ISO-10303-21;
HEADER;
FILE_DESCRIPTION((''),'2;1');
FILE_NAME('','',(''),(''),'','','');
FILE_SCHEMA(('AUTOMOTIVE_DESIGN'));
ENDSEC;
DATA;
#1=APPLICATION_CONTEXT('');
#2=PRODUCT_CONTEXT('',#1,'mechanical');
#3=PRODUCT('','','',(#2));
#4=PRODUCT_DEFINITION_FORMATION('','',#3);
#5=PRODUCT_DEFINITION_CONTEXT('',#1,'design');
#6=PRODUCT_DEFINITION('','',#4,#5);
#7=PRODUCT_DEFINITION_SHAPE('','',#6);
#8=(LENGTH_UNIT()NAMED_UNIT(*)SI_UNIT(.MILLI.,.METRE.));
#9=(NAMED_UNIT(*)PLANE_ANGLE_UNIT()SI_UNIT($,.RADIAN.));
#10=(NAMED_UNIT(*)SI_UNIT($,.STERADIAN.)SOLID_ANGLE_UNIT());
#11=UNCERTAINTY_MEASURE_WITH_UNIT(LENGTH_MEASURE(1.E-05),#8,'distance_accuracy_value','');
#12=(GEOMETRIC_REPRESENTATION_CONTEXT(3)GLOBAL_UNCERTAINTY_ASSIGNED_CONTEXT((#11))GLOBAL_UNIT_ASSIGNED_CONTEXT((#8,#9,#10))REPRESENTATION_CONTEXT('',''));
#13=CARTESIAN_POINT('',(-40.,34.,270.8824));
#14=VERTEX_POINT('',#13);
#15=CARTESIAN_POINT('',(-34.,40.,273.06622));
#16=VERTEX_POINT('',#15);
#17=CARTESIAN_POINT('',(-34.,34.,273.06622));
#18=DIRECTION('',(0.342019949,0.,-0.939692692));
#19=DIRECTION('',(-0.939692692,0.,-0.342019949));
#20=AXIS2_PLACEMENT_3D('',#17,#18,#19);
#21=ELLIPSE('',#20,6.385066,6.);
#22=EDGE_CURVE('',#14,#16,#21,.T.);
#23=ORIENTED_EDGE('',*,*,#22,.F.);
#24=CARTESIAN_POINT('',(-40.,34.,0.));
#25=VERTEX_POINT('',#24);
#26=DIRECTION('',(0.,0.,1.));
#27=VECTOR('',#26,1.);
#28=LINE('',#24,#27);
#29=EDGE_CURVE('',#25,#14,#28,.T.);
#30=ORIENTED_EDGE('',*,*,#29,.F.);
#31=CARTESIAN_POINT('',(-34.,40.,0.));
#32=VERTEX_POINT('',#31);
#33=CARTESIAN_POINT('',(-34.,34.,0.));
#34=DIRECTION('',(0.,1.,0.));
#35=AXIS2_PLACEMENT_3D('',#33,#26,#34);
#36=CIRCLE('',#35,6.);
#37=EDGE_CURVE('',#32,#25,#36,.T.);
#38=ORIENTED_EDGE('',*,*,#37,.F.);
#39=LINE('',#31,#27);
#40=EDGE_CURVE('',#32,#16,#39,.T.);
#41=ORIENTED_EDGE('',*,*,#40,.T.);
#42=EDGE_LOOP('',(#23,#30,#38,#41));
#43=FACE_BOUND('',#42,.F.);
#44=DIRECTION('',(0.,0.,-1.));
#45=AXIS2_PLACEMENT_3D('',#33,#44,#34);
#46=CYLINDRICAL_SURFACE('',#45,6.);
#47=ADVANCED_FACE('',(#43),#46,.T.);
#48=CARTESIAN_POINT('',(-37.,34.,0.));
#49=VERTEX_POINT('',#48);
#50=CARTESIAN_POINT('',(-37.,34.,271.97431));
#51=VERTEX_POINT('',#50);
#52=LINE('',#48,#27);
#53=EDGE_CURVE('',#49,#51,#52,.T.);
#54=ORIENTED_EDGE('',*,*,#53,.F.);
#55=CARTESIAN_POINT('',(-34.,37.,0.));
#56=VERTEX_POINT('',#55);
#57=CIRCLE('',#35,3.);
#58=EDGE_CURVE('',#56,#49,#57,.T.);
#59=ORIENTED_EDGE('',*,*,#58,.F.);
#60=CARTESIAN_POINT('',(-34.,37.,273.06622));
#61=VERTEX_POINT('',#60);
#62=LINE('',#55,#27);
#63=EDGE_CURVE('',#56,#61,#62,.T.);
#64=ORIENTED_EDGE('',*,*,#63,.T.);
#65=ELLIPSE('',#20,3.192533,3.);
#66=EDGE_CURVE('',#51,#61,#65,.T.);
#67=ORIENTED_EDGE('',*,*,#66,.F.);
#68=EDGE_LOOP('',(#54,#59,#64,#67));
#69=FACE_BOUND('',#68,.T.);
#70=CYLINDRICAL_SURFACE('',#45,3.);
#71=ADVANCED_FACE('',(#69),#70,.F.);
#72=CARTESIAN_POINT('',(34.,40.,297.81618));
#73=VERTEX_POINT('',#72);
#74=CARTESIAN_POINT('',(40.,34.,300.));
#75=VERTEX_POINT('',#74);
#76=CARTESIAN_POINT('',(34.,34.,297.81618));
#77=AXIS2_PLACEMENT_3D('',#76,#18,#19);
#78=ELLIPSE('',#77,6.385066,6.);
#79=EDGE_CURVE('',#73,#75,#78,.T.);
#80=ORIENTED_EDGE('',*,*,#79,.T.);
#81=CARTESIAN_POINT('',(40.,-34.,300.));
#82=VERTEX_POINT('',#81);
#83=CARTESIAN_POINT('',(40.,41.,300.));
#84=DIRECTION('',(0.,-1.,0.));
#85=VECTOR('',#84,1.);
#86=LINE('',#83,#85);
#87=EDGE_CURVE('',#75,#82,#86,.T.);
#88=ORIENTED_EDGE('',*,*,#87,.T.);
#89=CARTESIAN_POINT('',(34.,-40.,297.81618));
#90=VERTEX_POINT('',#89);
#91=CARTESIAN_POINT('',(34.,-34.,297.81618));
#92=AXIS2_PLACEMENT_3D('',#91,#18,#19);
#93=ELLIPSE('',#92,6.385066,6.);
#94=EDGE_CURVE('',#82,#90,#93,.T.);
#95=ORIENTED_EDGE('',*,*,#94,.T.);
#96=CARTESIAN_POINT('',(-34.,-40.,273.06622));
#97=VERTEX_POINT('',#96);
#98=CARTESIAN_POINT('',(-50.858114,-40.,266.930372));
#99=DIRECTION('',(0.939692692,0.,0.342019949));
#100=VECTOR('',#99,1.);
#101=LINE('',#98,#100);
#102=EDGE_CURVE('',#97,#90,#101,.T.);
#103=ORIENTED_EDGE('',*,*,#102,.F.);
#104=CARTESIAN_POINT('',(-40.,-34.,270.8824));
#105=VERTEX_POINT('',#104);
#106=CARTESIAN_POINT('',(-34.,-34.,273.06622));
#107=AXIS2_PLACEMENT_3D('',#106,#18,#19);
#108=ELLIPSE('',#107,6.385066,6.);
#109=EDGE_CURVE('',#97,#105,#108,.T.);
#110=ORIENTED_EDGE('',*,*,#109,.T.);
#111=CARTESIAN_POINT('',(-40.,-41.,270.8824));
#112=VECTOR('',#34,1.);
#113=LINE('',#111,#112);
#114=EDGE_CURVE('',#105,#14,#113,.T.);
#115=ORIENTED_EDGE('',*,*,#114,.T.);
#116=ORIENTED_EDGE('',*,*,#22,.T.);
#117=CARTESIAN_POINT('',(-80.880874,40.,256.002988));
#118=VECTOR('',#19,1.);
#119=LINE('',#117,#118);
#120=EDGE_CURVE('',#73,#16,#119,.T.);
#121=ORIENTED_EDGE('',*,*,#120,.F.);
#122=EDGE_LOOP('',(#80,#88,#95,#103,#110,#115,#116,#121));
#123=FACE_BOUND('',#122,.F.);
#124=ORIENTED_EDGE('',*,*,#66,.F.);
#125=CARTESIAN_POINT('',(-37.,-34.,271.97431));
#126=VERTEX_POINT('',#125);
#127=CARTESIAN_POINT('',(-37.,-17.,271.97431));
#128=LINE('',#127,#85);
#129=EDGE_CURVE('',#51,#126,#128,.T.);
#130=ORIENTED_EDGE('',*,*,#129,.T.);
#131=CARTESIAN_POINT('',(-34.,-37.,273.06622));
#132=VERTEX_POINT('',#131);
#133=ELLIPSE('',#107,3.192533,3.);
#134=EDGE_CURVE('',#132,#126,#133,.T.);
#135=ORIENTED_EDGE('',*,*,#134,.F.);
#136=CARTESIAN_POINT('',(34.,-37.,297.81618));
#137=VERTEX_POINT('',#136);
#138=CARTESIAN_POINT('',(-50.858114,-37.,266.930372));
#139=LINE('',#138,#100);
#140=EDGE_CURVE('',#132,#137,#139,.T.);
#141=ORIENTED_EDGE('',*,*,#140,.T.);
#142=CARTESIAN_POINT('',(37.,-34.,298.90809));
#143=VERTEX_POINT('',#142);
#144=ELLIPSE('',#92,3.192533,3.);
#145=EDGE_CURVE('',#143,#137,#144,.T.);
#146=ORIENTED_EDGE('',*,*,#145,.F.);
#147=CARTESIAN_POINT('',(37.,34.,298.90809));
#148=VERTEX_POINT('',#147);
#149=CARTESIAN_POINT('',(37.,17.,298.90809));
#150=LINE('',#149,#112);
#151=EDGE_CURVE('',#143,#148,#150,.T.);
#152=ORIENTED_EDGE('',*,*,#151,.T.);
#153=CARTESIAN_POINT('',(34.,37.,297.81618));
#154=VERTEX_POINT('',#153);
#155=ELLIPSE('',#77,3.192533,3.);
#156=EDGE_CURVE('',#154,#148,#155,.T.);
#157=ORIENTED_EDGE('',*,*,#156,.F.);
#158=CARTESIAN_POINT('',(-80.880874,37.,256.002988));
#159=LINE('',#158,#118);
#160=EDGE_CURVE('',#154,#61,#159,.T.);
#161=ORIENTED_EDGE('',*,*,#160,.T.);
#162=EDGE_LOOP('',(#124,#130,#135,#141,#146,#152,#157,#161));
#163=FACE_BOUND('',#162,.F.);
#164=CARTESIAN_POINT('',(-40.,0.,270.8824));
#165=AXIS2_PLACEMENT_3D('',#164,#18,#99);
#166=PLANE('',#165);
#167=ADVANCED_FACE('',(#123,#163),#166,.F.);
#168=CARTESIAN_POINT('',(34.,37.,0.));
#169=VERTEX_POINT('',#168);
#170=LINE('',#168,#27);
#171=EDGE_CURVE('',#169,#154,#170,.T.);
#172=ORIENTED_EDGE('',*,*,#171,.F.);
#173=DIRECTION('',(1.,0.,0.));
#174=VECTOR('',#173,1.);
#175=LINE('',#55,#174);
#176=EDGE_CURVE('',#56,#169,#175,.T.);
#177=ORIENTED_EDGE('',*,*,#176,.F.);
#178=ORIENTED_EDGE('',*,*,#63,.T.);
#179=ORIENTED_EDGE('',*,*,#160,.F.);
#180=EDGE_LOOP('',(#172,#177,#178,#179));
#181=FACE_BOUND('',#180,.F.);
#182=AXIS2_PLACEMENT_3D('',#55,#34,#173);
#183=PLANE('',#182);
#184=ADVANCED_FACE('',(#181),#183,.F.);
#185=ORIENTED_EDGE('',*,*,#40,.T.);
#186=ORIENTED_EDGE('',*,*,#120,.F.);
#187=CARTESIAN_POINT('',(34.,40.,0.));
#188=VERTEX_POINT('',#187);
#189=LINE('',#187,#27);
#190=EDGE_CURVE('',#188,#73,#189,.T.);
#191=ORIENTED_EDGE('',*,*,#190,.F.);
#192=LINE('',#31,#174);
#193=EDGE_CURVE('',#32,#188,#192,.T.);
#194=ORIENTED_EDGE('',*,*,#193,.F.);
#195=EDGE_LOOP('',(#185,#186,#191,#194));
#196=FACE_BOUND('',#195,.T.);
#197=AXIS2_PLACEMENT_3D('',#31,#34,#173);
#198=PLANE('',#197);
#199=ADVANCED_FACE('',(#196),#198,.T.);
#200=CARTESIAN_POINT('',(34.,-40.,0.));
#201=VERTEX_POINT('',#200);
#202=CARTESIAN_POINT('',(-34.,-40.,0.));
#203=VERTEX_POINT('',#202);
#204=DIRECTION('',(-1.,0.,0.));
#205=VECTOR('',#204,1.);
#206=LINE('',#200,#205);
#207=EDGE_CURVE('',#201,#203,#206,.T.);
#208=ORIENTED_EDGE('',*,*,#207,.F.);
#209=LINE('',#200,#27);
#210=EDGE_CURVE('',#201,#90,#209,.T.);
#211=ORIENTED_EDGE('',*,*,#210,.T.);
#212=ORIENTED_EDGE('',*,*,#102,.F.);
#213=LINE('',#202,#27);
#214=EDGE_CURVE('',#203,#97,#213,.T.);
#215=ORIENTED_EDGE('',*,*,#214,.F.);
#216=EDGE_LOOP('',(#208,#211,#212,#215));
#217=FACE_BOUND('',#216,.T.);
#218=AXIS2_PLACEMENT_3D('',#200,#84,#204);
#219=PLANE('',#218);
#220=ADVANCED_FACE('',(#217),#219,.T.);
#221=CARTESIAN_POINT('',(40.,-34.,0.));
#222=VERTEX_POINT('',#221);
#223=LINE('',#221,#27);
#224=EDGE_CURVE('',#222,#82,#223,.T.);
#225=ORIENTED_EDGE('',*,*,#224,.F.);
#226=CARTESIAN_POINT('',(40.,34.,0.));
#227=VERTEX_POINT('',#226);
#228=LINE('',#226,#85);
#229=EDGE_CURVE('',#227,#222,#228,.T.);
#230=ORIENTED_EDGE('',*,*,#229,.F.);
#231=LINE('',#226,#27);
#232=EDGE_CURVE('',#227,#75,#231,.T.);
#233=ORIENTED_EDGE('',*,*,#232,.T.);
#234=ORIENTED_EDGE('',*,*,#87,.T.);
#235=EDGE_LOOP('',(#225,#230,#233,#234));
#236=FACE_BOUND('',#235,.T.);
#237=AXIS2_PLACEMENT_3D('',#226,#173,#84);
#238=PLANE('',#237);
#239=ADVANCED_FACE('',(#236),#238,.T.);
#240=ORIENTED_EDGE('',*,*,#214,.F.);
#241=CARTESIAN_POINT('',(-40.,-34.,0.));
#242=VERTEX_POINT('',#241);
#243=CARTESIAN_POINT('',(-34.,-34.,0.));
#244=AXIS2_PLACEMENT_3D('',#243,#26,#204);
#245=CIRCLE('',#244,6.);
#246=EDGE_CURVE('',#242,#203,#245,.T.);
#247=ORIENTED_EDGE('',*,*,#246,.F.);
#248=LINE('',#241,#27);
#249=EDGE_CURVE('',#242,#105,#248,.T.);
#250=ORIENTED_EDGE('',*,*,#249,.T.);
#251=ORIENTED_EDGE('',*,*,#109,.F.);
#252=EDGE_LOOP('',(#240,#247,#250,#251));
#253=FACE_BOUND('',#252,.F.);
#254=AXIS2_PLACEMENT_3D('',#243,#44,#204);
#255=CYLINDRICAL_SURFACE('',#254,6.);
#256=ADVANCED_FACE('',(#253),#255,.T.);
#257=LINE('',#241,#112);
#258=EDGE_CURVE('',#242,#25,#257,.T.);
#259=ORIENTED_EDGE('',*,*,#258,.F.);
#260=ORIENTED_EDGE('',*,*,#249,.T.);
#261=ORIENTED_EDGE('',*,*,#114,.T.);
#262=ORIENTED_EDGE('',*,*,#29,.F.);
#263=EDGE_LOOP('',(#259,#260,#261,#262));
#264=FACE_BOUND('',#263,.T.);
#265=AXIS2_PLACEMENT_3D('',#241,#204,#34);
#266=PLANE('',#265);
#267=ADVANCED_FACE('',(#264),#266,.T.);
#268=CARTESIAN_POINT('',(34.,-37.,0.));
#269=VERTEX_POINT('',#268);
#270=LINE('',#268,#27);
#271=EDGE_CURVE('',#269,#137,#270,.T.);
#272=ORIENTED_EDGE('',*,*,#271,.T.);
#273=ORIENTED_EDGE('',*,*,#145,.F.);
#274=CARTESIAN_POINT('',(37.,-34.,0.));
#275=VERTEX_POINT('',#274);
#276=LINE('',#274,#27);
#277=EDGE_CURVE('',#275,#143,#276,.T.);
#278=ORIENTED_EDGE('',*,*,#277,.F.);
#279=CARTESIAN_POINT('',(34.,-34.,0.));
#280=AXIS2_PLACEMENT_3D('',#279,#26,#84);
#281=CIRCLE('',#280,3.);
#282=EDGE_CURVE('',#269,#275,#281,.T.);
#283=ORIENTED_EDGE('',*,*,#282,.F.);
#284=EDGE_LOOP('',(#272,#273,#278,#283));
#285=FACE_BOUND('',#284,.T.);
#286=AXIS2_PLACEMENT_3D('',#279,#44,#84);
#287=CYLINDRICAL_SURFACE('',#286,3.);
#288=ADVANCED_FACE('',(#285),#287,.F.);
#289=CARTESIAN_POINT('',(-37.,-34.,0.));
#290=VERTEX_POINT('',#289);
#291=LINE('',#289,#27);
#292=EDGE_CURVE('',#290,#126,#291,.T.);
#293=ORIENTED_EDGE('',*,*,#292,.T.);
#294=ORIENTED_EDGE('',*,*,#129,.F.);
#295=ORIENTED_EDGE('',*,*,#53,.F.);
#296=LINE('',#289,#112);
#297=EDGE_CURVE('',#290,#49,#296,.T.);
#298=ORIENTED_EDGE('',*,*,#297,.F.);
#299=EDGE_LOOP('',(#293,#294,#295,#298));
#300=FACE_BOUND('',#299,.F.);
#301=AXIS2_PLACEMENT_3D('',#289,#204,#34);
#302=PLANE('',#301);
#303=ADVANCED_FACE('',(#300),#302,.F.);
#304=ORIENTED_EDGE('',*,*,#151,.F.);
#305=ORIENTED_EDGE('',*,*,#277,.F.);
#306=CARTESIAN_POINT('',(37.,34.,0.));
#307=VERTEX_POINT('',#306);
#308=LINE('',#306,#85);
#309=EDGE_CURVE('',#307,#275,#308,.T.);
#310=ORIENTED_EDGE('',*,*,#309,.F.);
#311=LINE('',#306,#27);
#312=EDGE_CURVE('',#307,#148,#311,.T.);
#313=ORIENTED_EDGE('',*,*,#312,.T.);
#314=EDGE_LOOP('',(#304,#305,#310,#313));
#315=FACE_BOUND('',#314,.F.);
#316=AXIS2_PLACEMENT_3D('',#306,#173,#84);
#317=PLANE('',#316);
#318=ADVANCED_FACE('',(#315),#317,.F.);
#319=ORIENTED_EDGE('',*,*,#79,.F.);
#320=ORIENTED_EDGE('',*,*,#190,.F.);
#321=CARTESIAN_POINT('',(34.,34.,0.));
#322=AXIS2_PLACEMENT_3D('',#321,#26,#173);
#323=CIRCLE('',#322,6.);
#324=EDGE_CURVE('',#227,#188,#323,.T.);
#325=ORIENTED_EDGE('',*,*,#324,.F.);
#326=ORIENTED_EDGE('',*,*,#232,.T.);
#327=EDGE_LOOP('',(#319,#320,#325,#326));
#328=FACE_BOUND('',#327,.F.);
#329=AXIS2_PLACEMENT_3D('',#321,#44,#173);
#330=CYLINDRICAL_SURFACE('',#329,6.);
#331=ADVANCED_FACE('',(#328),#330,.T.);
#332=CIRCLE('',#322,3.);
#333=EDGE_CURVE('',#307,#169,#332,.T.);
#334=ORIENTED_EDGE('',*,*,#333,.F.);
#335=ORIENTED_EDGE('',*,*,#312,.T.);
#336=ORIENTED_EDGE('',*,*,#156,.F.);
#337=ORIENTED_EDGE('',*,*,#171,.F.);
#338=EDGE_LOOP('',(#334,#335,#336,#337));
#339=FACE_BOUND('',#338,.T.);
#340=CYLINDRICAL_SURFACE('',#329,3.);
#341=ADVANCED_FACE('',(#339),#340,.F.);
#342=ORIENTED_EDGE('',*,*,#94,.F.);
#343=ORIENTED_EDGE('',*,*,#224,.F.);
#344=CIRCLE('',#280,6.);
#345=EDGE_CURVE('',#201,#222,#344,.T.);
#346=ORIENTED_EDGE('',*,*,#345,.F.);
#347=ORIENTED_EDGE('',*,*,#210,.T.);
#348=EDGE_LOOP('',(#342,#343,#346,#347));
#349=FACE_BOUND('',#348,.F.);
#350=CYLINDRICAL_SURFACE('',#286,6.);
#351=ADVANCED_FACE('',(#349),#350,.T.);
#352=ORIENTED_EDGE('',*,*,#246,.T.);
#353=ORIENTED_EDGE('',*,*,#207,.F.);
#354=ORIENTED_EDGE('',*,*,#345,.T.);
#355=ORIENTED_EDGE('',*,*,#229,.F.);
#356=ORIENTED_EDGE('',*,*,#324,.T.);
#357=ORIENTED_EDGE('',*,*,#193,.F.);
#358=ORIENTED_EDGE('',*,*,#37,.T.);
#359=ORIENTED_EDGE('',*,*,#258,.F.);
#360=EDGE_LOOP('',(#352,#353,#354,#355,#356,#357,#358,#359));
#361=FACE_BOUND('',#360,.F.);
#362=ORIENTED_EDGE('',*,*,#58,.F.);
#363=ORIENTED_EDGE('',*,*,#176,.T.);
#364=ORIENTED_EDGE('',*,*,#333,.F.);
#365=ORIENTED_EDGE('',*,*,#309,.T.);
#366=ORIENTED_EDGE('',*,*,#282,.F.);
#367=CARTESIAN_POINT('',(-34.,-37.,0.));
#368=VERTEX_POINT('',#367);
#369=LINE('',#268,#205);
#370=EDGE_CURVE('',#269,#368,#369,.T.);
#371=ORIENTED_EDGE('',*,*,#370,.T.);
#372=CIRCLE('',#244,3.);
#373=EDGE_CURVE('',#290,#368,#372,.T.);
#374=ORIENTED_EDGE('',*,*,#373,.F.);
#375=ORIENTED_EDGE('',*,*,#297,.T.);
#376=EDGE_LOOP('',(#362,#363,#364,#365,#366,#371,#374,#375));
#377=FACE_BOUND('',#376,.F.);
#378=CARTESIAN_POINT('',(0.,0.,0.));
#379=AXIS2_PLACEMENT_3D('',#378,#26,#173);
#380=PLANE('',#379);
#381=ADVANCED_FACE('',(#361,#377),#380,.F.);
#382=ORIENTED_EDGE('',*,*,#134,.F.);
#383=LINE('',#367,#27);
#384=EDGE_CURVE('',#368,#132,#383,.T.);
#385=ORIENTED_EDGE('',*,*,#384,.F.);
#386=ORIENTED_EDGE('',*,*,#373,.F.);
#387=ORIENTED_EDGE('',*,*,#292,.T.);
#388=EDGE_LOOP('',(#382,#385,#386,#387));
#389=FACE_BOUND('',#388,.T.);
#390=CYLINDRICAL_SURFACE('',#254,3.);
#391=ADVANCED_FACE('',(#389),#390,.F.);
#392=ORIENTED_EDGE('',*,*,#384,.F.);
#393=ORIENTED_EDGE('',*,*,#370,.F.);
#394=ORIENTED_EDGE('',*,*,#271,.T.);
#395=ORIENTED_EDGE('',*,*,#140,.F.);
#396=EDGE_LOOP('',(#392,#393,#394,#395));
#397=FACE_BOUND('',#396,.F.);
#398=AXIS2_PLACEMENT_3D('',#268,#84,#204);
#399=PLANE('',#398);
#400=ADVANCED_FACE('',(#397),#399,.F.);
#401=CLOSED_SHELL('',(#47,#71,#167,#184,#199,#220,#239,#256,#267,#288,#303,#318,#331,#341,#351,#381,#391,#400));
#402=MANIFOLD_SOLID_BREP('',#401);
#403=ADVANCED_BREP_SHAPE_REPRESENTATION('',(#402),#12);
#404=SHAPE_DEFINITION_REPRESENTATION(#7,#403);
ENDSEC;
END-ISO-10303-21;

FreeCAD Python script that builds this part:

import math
import FreeCAD as App
import Part
import Sketcher
Q = App.Units.Quantity


def add_polygon(sketch, points):
    """Adds a closed chain of lines whose ends are joined by coincident constraints."""
    first, n = sketch.GeometryCount, len(points)
    for a, b in zip(points, points[1:] + points[:1]):
        sketch.addGeometry(Part.LineSegment(App.Vector(*a, 0), App.Vector(*b, 0)), False)
    for i in range(n):
        sketch.addConstraint(Sketcher.Constraint("Coincident", first + i, 2, first + (i + 1) % n, 1))

doc = App.newDocument("Part")
params = doc.addObject("Spreadsheet::Sheet", "Params")
for row, (alias, value) in enumerate([
    ("sketch1_radius", "6 mm"),
    ("sketch1_radius2", "3 mm"),
    ("pad1_length", "1000 mm"),
    ("sketch2_width", "80 mm"),
    ("sketch2_height", "700 mm"),
], start=1):
    params.set(f"A{row}", alias)
    params.set(f"B{row}", "=" + value)
    params.setAlias(f"B{row}", alias)

body = doc.addObject("PartDesign::Body", "Body")

# Sketch on XY plane
sketch1 = body.newObject("Sketcher::SketchObject", "Sketch")
sketch1.AttachmentSupport = (doc.getObject("XY_Plane"), [""])
sketch1.MapMode = "FlatFace"
sketch1.addGeometry([
    Part.LineSegment(App.Vector(-40, 34, 0), App.Vector(-40, -34, 0)),  # 0
    Part.ArcOfCircle(Part.Circle(App.Vector(-34, -34, 0), App.Vector(0, 0, 1), 6), math.radians(180), math.radians(270)),  # 1
    Part.LineSegment(App.Vector(-34, -40, 0), App.Vector(34, -40, 0)),  # 2
    Part.ArcOfCircle(Part.Circle(App.Vector(34, -34, 0), App.Vector(0, 0, 1), 6), math.radians(-90), math.radians(0)),  # 3
    Part.LineSegment(App.Vector(40, -34, 0), App.Vector(40, 34, 0)),  # 4
    Part.ArcOfCircle(Part.Circle(App.Vector(34, 34, 0), App.Vector(0, 0, 1), 6), math.radians(0), math.radians(90)),  # 5
    Part.LineSegment(App.Vector(34, 40, 0), App.Vector(-34, 40, 0)),  # 6
    Part.ArcOfCircle(Part.Circle(App.Vector(-34, 34, 0), App.Vector(0, 0, 1), 6), math.radians(90), math.radians(180)),  # 7
    Part.ArcOfCircle(Part.Circle(App.Vector(-34, 34, 0), App.Vector(0, 0, 1), 3), math.radians(90), math.radians(180)),  # 8
    Part.LineSegment(App.Vector(-34, 37, 0), App.Vector(34, 37, 0)),  # 9
    Part.ArcOfCircle(Part.Circle(App.Vector(34, 34, 0), App.Vector(0, 0, 1), 3), math.radians(0), math.radians(90)),  # 10
    Part.LineSegment(App.Vector(37, 34, 0), App.Vector(37, -34, 0)),  # 11
    Part.ArcOfCircle(Part.Circle(App.Vector(34, -34, 0), App.Vector(0, 0, 1), 3), math.radians(-90), math.radians(0)),  # 12
    Part.LineSegment(App.Vector(34, -37, 0), App.Vector(-34, -37, 0)),  # 13
    Part.ArcOfCircle(Part.Circle(App.Vector(-34, -34, 0), App.Vector(0, 0, 1), 3), math.radians(180), math.radians(270)),  # 14
    Part.LineSegment(App.Vector(-37, -34, 0), App.Vector(-37, 34, 0)),  # 15
], False)
sketch1.addConstraint([
    Sketcher.Constraint("Tangent", 0, 2, 1, 1),
    Sketcher.Constraint("Tangent", 1, 2, 2, 1),
    Sketcher.Constraint("Tangent", 2, 2, 3, 1),
    Sketcher.Constraint("Tangent", 3, 2, 4, 1),
    Sketcher.Constraint("Tangent", 4, 2, 5, 1),
    Sketcher.Constraint("Tangent", 5, 2, 6, 1),
    Sketcher.Constraint("Tangent", 6, 2, 7, 1),
    Sketcher.Constraint("Tangent", 7, 2, 0, 1),
    Sketcher.Constraint("Tangent", 8, 1, 9, 1),
    Sketcher.Constraint("Tangent", 9, 2, 10, 2),
    Sketcher.Constraint("Tangent", 10, 1, 11, 1),
    Sketcher.Constraint("Tangent", 11, 2, 12, 2),
    Sketcher.Constraint("Tangent", 12, 1, 13, 1),
    Sketcher.Constraint("Tangent", 13, 2, 14, 2),
    Sketcher.Constraint("Tangent", 14, 1, 15, 1),
    Sketcher.Constraint("Tangent", 15, 2, 8, 2),
    Sketcher.Constraint("Vertical", 0),
    Sketcher.Constraint("Horizontal", 2),
    Sketcher.Constraint("Vertical", 4),
    Sketcher.Constraint("Horizontal", 6),
    Sketcher.Constraint("Horizontal", 9),
    Sketcher.Constraint("Vertical", 11),
    Sketcher.Constraint("Horizontal", 13),
    Sketcher.Constraint("Vertical", 15),
    Sketcher.Constraint("Coincident", 8, 3, 7, 3),
    Sketcher.Constraint("Coincident", 10, 3, 5, 3),
    Sketcher.Constraint("Coincident", 12, 3, 3, 3),
    Sketcher.Constraint("Equal", 1, 3),
    Sketcher.Constraint("Equal", 3, 5),
    Sketcher.Constraint("Equal", 5, 7),
    Sketcher.Constraint("Equal", 12, 14),
    Sketcher.Constraint("Symmetric", 1, 3, 5, 3, -1, 1),
    Sketcher.Constraint("Equal", 13, 0),
    Sketcher.Constraint("Radius", 1, 6.0),
    Sketcher.Constraint("Radius", 8, 3.0),
    Sketcher.Constraint("DistanceX", 0, 2, -1, 1, 40.0),
])
sketch1.setExpression("Constraints[33]", "Params.sketch1_radius")
sketch1.setExpression("Constraints[34]", "Params.sketch1_radius2")
pad1 = body.newObject("PartDesign::Pad", "Pad")
pad1.Profile = sketch1
pad1.setExpression("Length", "Params.pad1_length")

# Sketch on XZ plane
sketch2 = body.newObject("Sketcher::SketchObject", "Sketch001")
sketch2.AttachmentSupport = (doc.getObject("XZ_Plane"), [""])
sketch2.MapMode = "FlatFace"
add_polygon(sketch2, [(40, 300), (-40, 271), (-40, 1000), (40, 1000)])  # lines 0-3
sketch2.addConstraint([
    Sketcher.Constraint("Vertical", 1),
    Sketcher.Constraint("Horizontal", 2),
    Sketcher.Constraint("Vertical", 3),
    Sketcher.Constraint("DistanceY", -1, 1, 3, 2, 300.0),
    Sketcher.Constraint("DistanceX", 2, 1, 2, 2, 80.0),
    Sketcher.Constraint("DistanceY", 3, 2, 3, 1, 700.0),
    Sketcher.Constraint("Angle", 0, Q("-160 deg")),
    Sketcher.Constraint("DistanceX", 0, 2, -1, 1, 40.0),
])
sketch2.setExpression("Constraints[8]", "Params.sketch2_width")
sketch2.setExpression("Constraints[9]", "Params.sketch2_height")
pocket1 = body.newObject("PartDesign::Pocket", "Pocket")
pocket1.Profile = sketch2
pocket1.Type = "ThroughAll"
pocket1.Midplane = True

doc.recompute()
